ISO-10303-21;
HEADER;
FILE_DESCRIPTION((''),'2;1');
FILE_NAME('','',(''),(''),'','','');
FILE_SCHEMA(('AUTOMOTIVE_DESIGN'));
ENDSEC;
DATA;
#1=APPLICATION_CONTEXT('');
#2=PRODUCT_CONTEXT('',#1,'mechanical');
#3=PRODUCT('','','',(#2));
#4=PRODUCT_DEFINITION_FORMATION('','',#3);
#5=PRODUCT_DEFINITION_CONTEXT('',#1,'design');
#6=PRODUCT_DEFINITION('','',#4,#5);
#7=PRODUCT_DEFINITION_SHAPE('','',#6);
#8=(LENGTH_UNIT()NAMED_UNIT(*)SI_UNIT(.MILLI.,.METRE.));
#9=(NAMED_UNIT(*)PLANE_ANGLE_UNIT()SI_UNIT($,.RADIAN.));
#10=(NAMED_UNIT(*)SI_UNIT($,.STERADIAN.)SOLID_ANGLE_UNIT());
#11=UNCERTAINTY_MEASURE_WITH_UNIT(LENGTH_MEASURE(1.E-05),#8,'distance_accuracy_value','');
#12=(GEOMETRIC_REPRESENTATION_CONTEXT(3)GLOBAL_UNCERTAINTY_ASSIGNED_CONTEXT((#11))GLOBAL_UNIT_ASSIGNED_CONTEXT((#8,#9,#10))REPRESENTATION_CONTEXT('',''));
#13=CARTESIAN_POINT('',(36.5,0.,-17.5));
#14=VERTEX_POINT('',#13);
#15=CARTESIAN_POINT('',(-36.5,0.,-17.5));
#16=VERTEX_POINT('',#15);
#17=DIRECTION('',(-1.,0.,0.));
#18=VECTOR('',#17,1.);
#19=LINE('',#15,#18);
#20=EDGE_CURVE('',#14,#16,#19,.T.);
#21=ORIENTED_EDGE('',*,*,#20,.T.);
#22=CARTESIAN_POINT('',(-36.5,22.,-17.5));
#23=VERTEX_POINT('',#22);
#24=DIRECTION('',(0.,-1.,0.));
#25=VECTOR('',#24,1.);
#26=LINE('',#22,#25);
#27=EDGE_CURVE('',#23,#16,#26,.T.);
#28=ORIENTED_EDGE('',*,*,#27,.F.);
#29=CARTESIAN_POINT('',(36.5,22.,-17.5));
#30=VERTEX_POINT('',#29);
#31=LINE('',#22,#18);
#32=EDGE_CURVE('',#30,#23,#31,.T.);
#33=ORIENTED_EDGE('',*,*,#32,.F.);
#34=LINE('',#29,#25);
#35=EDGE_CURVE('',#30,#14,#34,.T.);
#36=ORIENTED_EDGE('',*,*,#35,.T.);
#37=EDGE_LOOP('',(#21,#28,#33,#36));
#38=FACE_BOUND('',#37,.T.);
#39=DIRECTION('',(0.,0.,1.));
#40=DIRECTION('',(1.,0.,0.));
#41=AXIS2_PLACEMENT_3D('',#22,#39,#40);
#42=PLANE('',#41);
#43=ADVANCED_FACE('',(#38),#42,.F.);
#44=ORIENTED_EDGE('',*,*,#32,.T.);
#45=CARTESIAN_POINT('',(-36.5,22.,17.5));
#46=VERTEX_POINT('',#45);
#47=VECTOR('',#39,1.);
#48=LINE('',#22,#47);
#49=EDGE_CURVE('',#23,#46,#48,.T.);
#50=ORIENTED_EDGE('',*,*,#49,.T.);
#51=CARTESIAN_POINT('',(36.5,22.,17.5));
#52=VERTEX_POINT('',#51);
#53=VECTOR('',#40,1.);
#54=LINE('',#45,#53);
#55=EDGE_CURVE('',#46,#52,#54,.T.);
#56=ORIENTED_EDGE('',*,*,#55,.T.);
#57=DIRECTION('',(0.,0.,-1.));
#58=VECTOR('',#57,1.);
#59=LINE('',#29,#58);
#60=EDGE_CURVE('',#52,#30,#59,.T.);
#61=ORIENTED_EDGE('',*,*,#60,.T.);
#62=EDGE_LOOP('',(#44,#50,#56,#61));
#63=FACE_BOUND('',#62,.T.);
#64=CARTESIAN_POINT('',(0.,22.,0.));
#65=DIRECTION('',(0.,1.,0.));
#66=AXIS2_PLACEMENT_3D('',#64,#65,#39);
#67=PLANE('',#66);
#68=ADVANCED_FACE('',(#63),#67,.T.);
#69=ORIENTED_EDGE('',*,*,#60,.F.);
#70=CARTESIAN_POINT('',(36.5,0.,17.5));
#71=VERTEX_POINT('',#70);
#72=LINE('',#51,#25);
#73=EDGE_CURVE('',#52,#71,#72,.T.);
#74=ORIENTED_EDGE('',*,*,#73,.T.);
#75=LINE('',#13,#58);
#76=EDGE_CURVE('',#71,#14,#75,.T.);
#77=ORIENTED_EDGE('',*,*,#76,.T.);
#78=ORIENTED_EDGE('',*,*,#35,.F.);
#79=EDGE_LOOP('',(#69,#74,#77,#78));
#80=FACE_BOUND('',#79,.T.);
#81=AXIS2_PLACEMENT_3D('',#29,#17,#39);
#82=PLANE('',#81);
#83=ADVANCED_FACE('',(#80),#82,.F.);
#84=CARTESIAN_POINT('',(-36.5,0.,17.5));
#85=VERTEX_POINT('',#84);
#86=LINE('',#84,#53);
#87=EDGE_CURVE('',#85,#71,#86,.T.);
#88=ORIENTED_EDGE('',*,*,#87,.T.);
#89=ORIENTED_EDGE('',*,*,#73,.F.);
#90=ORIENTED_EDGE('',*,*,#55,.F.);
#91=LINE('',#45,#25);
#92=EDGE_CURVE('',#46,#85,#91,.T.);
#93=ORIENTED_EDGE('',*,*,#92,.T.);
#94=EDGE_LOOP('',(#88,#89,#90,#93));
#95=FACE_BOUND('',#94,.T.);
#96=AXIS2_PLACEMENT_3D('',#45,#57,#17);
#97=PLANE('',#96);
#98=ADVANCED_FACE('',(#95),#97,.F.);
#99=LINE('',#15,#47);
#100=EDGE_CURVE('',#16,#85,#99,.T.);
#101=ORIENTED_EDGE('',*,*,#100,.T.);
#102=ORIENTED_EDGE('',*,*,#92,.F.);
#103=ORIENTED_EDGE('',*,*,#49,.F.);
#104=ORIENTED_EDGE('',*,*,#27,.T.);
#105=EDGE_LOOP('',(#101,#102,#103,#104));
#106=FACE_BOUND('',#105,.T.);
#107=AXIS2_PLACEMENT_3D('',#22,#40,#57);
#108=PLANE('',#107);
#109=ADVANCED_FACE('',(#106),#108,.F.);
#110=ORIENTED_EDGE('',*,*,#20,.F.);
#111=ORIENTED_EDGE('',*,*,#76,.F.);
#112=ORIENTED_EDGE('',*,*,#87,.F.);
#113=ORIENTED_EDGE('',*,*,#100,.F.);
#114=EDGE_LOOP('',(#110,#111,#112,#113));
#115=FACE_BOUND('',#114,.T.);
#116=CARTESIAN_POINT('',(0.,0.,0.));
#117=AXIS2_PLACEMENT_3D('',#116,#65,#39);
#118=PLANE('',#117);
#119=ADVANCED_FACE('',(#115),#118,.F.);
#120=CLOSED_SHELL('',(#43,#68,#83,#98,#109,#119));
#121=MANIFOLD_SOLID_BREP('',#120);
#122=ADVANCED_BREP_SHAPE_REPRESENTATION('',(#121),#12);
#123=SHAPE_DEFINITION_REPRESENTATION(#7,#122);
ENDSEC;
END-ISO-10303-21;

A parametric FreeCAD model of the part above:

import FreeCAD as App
import Part
import Sketcher
from FreeCAD import Vector


def add_polygon(sketch, points):
    """Adds a closed chain of lines whose ends are joined by coincident constraints."""
    first, n = sketch.GeometryCount, len(points)
    for a, b in zip(points, points[1:] + points[:1]):
        sketch.addGeometry(Part.LineSegment(App.Vector(*a, 0), App.Vector(*b, 0)), False)
    for i in range(n):
        sketch.addConstraint(Sketcher.Constraint("Coincident", first + i, 2, first + (i + 1) % n, 1))

doc = App.newDocument("Part")
body = doc.addObject("PartDesign::Body", "Body")

# Sketch on XZ plane
sketch1 = body.newObject("Sketcher::SketchObject", "Sketch")
sketch1.AttachmentSupport = (doc.getObject("XZ_Plane"), [""])
sketch1.MapMode = "FlatFace"
add_polygon(sketch1, [(-36, -18), (-36, 18), (36, 18), (36, -18)])  # lines 0-3
sketch1.addConstraint([
    Sketcher.Constraint("Vertical", 0),
    Sketcher.Constraint("Horizontal", 1),
    Sketcher.Constraint("Vertical", 2),
    Sketcher.Constraint("Horizontal", 3),
    Sketcher.Constraint("Symmetric", 0, 2, 2, 2, -1, 1),
    Sketcher.Constraint("DistanceX", 1, 1, 1, 2, 73.0),
    Sketcher.Constraint("DistanceY", 0, 1, 0, 2, 35.0),
])
pad1 = body.newObject("PartDesign::Pad", "Pad")
pad1.Profile = sketch1
pad1.Length = 22
pad1.Reversed = True

doc.recompute()
